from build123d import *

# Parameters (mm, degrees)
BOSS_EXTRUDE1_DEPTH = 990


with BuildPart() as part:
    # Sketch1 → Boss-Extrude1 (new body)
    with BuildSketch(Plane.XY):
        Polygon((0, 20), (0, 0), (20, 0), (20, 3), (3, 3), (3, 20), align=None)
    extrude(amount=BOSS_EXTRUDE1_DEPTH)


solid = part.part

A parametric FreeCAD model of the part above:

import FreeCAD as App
import Part
import Sketcher

V = App.Vector
Q = App.Units.Quantity

doc = App.newDocument("Part")
body = doc.addObject("PartDesign::Body", "Body")

# Sketch on XY plane
sketch1 = body.newObject("Sketcher::SketchObject", "Sketch")
sketch1.AttachmentSupport = (doc.getObject("XY_Plane"), [""])
sketch1.MapMode = "FlatFace"
sketch1.addGeometry([
    Part.LineSegment(V(0, 20, 0), V(0, 0, 0)),  # 0
    Part.LineSegment(V(0, 0, 0), V(20, 0, 0)),  # 1
    Part.LineSegment(V(20, 0, 0), V(20, 3, 0)),  # 2
    Part.LineSegment(V(20, 3, 0), V(3, 3, 0)),  # 3
    Part.LineSegment(V(3, 3, 0), V(3, 20, 0)),  # 4
    Part.LineSegment(V(3, 20, 0), V(0, 20, 0)),  # 5
], False)
sketch1.addConstraint([
    Sketcher.Constraint("Coincident", 0, 2, 1, 1),
    Sketcher.Constraint("Coincident", 1, 2, 2, 1),
    Sketcher.Constraint("Coincident", 2, 2, 3, 1),
    Sketcher.Constraint("Coincident", 3, 2, 4, 1),
    Sketcher.Constraint("Coincident", 4, 2, 5, 1),
    Sketcher.Constraint("Coincident", 5, 2, 0, 1),
    Sketcher.Constraint("Vertical", 0),
    Sketcher.Constraint("Horizontal", 1),
    Sketcher.Constraint("Vertical", 2),
    Sketcher.Constraint("Horizontal", 3),
    Sketcher.Constraint("Vertical", 4),
    Sketcher.Constraint("Horizontal", 5),
    Sketcher.Constraint("Coincident", 0, 2, -1, 1),
    Sketcher.Constraint("Equal", 1, 0),
    Sketcher.Constraint("Equal", 5, 2),
    Sketcher.Constraint("DistanceX", 1, 1, 1, 2, Q("20 mm")),
    Sketcher.Constraint("DistanceX", 3, 2, 3, 1, Q("17 mm")),
])
pad1 = body.newObject("PartDesign::Pad", "Pad")
pad1.Profile = sketch1
pad1.Length = 990

doc.recompute()
